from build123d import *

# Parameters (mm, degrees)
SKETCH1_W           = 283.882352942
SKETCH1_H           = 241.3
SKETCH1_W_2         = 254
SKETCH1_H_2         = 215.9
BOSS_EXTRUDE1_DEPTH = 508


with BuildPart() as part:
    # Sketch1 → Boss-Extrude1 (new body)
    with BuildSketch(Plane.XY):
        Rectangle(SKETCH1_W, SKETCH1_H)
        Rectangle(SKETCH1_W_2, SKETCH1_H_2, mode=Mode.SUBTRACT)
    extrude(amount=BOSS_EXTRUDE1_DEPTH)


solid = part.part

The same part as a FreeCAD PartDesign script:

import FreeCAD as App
import Part
import Sketcher

V = App.Vector
Q = App.Units.Quantity

doc = App.newDocument("Part")
body = doc.addObject("PartDesign::Body", "Body")

# Sketch on XY plane
sketch1 = doc.addObject("Sketcher::SketchObject", "Sketch")
body.addObject(sketch1)
sketch1.AttachmentSupport = (doc.XY_Plane, [""])
sketch1.MapMode = "FlatFace"
sketch1.addGeometry([
    Part.LineSegment(V(-141.941176, 120.65, 0), V(-141.941176, -120.65, 0)),  # 0
    Part.LineSegment(V(-141.941176, -120.65, 0), V(141.941176, -120.65, 0)),  # 1
    Part.LineSegment(V(141.941176, -120.65, 0), V(141.941176, 120.65, 0)),  # 2
    Part.LineSegment(V(141.941176, 120.65, 0), V(-141.941176, 120.65, 0)),  # 3
    Part.LineSegment(V(127, -107.95, 0), V(-127, -107.95, 0)),  # 4
    Part.LineSegment(V(-127, -107.95, 0), V(-127, 107.95, 0)),  # 5
    Part.LineSegment(V(-127, 107.95, 0), V(127, 107.95, 0)),  # 6
    Part.LineSegment(V(127, 107.95, 0), V(127, -107.95, 0)),  # 7
], False)
sketch1.addConstraint([
    Sketcher.Constraint("Coincident", 0, 2, 1, 1),
    Sketcher.Constraint("Coincident", 1, 2, 2, 1),
    Sketcher.Constraint("Coincident", 2, 2, 3, 1),
    Sketcher.Constraint("Coincident", 3, 2, 0, 1),
    Sketcher.Constraint("Coincident", 4, 2, 5, 1),
    Sketcher.Constraint("Coincident", 5, 2, 6, 1),
    Sketcher.Constraint("Coincident", 6, 2, 7, 1),
    Sketcher.Constraint("Coincident", 7, 2, 4, 1),
    Sketcher.Constraint("Vertical", 0),
    Sketcher.Constraint("Horizontal", 1),
    Sketcher.Constraint("Vertical", 2),
    Sketcher.Constraint("Horizontal", 3),
    Sketcher.Constraint("Horizontal", 4),
    Sketcher.Constraint("Vertical", 5),
    Sketcher.Constraint("Horizontal", 6),
    Sketcher.Constraint("Vertical", 7),
    Sketcher.Constraint("Symmetric", 0, 2, 2, 2, -1, 1),
    Sketcher.Constraint("Symmetric", 4, 2, 6, 2, -1, 1),
    Sketcher.Constraint("DistanceX", 4, 2, 4, 1, Q("10 in")),
    Sketcher.Constraint("DistanceY", 0, 2, 0, 1, Q("9.5 in")),
    Sketcher.Constraint("DistanceY", 5, 1, 5, 2, Q("8.5 in")),
    Sketcher.Constraint("DistanceX", 1, 1, 1, 2, 283.882353),
])
pad1 = doc.addObject("PartDesign::Pad", "Pad")
body.addObject(pad1)
pad1.Profile = sketch1
pad1.Length = Q("20 in")

doc.recompute()
